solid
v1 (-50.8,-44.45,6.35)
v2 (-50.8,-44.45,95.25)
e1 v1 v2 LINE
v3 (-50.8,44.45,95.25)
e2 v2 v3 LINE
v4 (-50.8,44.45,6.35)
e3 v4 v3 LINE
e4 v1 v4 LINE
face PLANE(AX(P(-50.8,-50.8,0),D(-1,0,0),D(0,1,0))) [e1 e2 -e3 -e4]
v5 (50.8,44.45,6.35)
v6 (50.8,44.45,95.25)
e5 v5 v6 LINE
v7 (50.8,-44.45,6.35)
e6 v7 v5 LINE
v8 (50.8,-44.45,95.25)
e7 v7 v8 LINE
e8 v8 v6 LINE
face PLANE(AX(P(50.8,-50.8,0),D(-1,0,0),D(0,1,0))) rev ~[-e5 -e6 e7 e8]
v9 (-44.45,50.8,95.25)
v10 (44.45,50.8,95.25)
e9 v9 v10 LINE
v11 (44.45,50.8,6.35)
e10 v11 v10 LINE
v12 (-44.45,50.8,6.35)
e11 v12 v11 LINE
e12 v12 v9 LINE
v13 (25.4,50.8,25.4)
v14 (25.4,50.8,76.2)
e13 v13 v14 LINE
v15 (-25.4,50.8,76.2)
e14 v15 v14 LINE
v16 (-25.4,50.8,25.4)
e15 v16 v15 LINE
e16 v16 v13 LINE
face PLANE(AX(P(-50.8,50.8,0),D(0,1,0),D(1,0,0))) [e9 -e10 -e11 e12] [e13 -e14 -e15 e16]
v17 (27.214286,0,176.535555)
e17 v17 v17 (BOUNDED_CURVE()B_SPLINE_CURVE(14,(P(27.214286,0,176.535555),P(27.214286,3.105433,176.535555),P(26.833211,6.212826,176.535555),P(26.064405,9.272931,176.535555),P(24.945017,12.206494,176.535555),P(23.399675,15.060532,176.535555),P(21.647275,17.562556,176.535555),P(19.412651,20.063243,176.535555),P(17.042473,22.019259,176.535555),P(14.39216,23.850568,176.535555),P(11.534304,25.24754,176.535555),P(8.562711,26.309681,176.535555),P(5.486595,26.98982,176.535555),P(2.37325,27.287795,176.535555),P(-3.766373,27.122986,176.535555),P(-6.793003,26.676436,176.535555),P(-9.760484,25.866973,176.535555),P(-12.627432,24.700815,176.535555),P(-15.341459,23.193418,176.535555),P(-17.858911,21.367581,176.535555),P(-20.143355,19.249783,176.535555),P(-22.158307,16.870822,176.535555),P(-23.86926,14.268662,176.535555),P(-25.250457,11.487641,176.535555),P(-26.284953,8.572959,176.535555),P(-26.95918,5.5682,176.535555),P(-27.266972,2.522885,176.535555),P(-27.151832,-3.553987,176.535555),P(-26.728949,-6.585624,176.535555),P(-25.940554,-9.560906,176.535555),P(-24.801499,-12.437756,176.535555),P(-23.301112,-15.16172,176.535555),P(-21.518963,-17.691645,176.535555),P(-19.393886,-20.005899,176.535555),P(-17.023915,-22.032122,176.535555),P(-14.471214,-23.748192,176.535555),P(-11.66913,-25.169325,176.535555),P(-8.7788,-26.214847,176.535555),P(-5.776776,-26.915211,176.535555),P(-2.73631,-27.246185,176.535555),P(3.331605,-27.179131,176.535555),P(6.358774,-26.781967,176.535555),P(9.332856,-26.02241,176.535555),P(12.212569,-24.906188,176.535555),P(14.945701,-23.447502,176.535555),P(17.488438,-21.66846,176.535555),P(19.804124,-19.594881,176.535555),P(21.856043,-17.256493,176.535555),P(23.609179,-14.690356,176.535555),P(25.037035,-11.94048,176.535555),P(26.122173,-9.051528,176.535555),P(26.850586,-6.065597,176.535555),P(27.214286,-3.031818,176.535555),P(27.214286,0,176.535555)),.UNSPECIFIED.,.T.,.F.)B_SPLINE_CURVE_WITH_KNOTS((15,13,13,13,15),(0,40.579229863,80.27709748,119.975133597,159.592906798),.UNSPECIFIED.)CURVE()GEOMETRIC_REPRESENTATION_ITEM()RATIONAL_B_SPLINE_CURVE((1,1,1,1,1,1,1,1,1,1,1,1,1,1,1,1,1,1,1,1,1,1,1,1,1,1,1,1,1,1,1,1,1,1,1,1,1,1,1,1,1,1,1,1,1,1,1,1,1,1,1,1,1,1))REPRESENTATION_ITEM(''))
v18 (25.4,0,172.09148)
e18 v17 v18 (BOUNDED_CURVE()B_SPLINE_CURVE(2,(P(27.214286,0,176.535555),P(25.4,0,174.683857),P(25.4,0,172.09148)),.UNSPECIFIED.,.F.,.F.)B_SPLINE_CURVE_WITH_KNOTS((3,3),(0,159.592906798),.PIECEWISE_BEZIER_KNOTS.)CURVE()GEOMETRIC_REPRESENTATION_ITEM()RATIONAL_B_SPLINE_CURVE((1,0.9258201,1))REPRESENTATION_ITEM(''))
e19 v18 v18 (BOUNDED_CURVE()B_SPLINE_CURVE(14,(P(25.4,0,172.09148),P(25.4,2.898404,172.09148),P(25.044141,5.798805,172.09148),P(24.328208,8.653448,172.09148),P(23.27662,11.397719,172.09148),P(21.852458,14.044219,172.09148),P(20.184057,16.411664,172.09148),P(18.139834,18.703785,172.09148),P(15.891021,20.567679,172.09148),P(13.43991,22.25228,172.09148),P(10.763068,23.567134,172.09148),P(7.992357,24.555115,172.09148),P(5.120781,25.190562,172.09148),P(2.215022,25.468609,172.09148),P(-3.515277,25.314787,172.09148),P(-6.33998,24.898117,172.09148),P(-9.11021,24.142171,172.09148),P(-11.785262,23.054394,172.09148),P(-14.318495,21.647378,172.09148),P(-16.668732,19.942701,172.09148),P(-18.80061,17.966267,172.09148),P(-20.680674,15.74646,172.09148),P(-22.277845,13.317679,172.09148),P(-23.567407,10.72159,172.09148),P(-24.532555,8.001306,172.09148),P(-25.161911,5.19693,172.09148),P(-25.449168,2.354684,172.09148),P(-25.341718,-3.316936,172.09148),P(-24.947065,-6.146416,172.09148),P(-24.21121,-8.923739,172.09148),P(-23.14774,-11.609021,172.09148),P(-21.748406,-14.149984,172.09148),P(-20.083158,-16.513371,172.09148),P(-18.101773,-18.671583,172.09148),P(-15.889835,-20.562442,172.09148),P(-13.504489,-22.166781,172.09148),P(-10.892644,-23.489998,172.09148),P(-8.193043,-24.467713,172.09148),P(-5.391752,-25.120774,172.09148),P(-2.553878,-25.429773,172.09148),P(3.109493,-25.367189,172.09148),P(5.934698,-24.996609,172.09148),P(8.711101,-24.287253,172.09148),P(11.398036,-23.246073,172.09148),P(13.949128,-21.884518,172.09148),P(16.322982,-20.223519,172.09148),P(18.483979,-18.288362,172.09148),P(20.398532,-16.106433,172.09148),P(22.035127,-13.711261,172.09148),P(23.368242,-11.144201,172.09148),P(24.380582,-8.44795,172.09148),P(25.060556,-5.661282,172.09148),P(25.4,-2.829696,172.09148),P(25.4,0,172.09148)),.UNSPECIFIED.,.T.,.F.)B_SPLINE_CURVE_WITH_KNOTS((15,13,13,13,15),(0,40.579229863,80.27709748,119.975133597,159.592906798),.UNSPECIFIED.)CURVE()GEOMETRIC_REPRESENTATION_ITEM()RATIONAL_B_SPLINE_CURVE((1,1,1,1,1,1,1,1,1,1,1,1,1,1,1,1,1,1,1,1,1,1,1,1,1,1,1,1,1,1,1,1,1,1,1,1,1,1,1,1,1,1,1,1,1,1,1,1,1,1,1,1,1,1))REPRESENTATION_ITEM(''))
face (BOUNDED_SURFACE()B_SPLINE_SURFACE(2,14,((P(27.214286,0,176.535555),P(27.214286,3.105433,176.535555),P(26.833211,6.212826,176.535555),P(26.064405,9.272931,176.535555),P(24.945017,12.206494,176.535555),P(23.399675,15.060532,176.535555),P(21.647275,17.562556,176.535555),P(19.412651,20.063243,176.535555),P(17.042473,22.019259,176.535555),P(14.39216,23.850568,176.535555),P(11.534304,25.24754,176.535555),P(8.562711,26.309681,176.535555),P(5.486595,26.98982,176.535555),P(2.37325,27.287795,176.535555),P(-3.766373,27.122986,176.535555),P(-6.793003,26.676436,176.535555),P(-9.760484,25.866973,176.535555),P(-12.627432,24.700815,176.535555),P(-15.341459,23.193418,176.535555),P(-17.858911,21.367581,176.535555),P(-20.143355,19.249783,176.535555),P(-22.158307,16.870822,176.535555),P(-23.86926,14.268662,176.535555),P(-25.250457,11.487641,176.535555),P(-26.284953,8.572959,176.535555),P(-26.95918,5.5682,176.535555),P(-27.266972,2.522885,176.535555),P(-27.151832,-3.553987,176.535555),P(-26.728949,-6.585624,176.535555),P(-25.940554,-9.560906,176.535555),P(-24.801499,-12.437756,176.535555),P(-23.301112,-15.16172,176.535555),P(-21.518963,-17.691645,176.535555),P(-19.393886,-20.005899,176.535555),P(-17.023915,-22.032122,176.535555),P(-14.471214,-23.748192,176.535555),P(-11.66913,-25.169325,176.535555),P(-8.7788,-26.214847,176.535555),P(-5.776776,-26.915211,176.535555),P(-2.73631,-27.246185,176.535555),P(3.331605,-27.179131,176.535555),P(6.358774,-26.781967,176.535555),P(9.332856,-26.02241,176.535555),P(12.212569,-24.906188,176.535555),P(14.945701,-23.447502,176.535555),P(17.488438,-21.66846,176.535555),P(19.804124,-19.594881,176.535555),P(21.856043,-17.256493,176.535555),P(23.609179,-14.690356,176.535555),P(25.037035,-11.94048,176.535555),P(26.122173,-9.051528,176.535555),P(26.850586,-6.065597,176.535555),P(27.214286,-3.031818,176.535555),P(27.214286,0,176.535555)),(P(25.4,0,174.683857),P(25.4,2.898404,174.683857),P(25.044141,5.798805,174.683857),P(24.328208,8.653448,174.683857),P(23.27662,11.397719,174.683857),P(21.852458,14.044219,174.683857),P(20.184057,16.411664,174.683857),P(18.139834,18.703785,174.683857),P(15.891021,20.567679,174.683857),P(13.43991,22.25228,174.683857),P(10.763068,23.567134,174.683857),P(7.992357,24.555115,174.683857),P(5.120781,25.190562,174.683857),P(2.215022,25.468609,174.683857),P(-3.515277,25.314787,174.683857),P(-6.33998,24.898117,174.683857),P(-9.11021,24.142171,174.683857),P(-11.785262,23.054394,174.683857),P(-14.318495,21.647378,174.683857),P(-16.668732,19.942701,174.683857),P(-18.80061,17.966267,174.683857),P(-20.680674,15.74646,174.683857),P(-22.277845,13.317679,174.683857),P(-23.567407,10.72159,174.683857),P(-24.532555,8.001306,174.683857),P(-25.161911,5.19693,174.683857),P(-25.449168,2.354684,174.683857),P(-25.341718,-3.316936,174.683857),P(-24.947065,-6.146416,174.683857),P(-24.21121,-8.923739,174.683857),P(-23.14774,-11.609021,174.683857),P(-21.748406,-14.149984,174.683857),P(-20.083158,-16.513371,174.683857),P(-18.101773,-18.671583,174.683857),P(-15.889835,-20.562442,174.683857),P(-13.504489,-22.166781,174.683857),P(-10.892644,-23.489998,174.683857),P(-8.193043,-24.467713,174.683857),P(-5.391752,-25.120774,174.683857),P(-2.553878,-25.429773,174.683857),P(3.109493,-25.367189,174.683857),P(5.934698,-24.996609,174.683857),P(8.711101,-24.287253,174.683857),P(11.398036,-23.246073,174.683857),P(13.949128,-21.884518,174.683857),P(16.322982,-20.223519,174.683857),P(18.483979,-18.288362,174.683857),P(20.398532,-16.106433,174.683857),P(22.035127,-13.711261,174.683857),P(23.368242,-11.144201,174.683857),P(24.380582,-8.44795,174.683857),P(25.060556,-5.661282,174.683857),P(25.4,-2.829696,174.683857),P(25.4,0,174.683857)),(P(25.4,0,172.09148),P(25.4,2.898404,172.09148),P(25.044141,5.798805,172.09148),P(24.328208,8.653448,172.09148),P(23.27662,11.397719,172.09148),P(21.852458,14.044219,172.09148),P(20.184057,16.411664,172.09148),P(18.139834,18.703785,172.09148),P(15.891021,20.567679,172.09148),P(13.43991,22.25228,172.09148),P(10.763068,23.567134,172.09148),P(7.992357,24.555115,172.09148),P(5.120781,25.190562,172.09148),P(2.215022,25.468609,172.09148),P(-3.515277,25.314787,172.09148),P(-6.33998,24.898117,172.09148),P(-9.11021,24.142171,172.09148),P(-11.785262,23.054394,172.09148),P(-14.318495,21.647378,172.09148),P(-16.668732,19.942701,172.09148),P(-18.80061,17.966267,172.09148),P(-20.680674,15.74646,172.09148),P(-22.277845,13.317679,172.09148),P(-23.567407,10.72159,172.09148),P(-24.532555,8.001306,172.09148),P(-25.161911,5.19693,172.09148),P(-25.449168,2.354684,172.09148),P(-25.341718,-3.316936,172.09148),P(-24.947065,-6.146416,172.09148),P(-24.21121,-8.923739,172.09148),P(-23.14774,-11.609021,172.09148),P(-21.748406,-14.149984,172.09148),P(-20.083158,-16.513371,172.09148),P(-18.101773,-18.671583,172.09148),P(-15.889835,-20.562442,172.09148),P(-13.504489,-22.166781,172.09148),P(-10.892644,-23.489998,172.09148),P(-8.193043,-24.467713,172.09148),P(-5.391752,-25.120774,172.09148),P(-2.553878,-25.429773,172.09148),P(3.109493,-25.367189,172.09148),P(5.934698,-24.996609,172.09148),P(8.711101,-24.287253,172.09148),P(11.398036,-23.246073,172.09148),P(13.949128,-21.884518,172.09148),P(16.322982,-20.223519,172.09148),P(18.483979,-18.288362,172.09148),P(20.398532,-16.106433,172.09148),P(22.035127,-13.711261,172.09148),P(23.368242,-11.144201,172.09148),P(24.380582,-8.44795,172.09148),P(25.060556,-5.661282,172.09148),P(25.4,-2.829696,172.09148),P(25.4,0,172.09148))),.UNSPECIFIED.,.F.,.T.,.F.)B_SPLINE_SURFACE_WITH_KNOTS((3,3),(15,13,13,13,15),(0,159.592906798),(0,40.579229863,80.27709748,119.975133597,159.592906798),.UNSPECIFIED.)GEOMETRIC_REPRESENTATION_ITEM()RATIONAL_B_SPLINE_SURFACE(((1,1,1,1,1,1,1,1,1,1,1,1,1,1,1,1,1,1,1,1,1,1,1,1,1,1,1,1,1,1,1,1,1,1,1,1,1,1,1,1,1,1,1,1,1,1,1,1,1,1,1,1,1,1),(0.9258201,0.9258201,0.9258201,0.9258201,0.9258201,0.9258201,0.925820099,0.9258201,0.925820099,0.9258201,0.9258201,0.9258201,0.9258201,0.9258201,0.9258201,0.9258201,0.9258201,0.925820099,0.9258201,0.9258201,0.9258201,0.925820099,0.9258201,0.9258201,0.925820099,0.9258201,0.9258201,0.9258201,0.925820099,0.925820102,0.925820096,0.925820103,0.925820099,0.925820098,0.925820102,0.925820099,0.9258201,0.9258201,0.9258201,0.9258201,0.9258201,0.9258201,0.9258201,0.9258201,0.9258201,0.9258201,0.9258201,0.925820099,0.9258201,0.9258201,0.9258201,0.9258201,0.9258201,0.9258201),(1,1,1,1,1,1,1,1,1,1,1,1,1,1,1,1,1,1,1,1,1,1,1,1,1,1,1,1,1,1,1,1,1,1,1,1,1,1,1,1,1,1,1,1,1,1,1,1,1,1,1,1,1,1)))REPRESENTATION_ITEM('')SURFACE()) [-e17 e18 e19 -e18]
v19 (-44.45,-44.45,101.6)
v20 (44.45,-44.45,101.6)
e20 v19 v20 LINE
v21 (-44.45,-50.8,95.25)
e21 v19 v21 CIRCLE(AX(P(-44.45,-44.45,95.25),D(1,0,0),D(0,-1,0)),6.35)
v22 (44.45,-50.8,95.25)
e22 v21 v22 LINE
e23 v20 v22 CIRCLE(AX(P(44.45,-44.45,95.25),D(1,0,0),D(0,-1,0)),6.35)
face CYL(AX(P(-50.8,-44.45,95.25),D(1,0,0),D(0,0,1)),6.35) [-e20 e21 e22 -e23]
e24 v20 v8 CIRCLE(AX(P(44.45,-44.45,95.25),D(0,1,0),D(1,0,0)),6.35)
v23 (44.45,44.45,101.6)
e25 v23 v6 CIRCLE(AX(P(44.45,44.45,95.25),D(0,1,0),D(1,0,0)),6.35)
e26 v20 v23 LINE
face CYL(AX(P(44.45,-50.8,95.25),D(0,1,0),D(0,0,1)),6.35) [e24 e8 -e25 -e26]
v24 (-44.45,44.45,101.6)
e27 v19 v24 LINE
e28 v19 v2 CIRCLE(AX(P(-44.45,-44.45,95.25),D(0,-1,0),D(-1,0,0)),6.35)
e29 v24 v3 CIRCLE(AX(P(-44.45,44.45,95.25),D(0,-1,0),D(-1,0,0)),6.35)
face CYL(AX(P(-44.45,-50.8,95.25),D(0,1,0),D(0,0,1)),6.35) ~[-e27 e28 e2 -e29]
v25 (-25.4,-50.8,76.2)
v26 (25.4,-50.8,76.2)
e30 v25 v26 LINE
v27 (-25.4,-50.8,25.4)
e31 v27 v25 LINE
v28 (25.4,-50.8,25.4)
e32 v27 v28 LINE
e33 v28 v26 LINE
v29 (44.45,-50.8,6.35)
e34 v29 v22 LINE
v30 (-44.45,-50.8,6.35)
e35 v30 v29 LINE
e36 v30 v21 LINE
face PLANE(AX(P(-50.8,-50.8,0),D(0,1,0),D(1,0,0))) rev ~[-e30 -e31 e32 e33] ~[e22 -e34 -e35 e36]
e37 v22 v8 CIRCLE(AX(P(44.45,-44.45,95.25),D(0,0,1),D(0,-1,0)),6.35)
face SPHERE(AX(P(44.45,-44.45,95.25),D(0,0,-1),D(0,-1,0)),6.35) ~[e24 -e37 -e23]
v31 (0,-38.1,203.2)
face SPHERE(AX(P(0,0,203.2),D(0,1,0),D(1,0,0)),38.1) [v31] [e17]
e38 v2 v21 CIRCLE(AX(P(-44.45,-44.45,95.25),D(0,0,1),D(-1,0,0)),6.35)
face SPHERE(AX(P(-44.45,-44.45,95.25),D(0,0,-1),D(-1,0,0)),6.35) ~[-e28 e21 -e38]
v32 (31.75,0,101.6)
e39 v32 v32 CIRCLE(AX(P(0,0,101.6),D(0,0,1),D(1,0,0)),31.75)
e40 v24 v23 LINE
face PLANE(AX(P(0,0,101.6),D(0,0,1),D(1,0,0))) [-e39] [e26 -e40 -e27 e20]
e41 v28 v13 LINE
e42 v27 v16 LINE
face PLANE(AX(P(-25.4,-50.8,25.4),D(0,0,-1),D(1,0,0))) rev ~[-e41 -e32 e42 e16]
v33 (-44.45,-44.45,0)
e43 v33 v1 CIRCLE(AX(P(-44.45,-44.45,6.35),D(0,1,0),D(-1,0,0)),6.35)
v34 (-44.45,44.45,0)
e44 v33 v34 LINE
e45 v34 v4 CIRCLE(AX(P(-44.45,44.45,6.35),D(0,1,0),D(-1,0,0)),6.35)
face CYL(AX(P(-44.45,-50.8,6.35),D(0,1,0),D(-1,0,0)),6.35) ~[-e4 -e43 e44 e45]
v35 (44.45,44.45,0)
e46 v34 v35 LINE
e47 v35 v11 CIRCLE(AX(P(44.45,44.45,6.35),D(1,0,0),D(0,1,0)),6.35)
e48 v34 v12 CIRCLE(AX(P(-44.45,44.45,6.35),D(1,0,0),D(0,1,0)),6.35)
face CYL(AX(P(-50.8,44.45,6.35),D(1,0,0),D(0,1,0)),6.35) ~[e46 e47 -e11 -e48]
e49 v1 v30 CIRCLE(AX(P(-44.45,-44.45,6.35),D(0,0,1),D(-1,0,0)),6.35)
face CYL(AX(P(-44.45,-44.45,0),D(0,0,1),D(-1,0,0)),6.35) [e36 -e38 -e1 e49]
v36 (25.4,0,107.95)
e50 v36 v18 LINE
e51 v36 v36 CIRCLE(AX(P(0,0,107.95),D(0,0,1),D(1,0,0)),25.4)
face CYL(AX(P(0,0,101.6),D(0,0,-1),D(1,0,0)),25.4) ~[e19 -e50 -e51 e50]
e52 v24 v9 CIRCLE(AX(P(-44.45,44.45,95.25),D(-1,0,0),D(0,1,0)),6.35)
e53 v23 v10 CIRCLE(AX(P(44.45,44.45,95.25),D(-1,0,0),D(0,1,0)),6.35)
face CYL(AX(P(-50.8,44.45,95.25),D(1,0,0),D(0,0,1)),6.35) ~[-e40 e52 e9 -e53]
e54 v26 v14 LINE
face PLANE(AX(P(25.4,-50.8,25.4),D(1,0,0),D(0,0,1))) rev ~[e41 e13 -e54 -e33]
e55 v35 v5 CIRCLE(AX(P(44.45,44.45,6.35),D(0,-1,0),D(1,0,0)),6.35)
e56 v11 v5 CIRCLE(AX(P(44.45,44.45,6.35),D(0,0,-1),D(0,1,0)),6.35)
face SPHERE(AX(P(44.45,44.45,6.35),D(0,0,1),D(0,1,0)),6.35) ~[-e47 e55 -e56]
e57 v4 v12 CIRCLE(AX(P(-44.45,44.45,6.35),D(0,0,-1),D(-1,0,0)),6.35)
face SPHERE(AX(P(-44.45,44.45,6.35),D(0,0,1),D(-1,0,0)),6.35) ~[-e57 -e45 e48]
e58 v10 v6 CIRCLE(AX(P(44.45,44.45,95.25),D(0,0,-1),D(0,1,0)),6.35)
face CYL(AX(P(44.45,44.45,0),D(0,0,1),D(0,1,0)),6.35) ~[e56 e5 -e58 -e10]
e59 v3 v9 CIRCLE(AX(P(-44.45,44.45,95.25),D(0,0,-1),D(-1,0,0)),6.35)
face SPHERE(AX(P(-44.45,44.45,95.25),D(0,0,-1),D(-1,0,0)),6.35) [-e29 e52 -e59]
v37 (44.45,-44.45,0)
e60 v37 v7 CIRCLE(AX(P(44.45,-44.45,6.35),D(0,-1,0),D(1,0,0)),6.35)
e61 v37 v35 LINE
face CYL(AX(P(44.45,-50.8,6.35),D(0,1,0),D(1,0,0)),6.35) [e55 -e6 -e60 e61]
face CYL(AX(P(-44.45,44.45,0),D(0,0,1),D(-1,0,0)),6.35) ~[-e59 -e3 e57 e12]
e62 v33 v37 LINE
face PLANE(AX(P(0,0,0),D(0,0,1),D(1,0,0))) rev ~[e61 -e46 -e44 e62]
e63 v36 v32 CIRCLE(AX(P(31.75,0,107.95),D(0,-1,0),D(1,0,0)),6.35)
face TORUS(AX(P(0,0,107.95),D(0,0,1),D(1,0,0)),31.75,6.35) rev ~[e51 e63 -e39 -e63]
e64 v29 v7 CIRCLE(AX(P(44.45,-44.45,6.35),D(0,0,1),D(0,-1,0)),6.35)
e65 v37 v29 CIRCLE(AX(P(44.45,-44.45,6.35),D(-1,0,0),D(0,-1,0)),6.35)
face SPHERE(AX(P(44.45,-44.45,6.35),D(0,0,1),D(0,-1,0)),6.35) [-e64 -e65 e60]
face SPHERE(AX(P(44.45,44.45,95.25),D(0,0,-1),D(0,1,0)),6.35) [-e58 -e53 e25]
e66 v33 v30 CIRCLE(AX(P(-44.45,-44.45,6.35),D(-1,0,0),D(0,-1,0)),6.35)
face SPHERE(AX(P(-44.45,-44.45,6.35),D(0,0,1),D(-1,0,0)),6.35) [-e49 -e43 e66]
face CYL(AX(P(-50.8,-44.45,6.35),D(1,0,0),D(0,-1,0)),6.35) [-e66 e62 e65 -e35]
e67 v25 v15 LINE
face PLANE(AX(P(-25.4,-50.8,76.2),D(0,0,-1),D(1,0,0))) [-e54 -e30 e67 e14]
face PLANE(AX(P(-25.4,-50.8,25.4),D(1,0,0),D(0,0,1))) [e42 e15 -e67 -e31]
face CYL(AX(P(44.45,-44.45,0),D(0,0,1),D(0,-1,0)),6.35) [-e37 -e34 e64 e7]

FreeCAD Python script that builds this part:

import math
import FreeCAD as App
import Part
import Sketcher

V = App.Vector
Q = App.Units.Quantity


def edges_at(feature, points):
    """Names of the edges that pass closest to the given points."""
    edges = feature.Shape.Edges
    near = lambda p: min(range(len(edges)), key=lambda i: edges[i].distToShape(Part.Vertex(*p))[0])
    return sorted({f"Edge{near(p) + 1}" for p in points})


def add_polygon(sketch, points):
    """Adds a closed chain of lines whose ends are joined by coincident constraints."""
    first, n = sketch.GeometryCount, len(points)
    for a, b in zip(points, points[1:] + points[:1]):
        sketch.addGeometry(Part.LineSegment(App.Vector(*a, 0), App.Vector(*b, 0)), False)
    for i in range(n):
        sketch.addConstraint(Sketcher.Constraint("Coincident", first + i, 2, first + (i + 1) % n, 1))

doc = App.newDocument("Part")
body = doc.addObject("PartDesign::Body", "Body")

sketch1 = body.newObject("Sketcher::SketchObject", "Sketch")
sketch1.AttachmentSupport = (doc.getObject("XY_Plane"), [""])
sketch1.MapMode = "FlatFace"
add_polygon(sketch1, [(-51, 51), (-51, -51), (51, -51), (51, 51)])
sketch1.addConstraint([
    Sketcher.Constraint("Vertical", 0),
    Sketcher.Constraint("Horizontal", 1),
    Sketcher.Constraint("Vertical", 2),
    Sketcher.Constraint("Horizontal", 3),
    Sketcher.Constraint("Symmetric", 0, 2, 2, 2, -1, 1),
    Sketcher.Constraint("Equal", 3, 0),
    Sketcher.Constraint("DistanceX", 1, 1, 1, 2, Q("4 in")),
])
pad1 = body.newObject("PartDesign::Pad", "Pad")
pad1.Profile = sketch1
pad1.Length = Q("4 in")

sketch2 = body.newObject("Sketcher::SketchObject", "Sketch001")
sketch2.AttachmentSupport = (doc.getObject("XY_Plane"), [""])
sketch2.MapMode = "FlatFace"
sketch2.AttachmentOffset = App.Placement(V(0, 0, 4 * 25.4), App.Rotation())
sketch2.addGeometry(Part.Circle(V(0, 0, 0), V(0, 0, 1), 25), False)
sketch2.addConstraint([
    Sketcher.Constraint("Coincident", 0, 3, -1, 1),
    Sketcher.Constraint("Diameter", 0, Q("2 in")),
])
pad2 = body.newObject("PartDesign::Pad", "Pad001")
pad2.Profile = sketch2
pad2.Length = Q("4 in")

sketch3 = body.newObject("Sketcher::SketchObject", "Sketch002")
sketch3.AttachmentSupport = (doc.getObject("XY_Plane"), [""])
sketch3.MapMode = "FlatFace"
sketch3.AttachmentOffset = App.Placement(V(0, 0, 8 * 25.4), App.Rotation())
sketch3.addGeometry([
    Part.ArcOfCircle(Part.Circle(V(0, 0, 0), V(0, 0, 1), 38), math.radians(-90), math.radians(90)),
    Part.LineSegment(V(0, 38, 0), V(0, -38, 0)),
], False)
sketch3.addConstraint([
    Sketcher.Constraint("Coincident", 0, 1, 1, 2),
    Sketcher.Constraint("Coincident", 1, 1, 0, 2),
    Sketcher.Constraint("Vertical", 1),
    Sketcher.Constraint("Coincident", 0, 3, -1, 1),
    Sketcher.Constraint("PointOnObject", 0, 1, -2),
    Sketcher.Constraint("Radius", 0, Q("1.5 in")),
])
revolution = body.newObject("PartDesign::Revolution", "Revolution")
revolution.Profile = sketch3
revolution.ReferenceAxis = (sketch3, ["V_Axis"])
revolution.Angle = 360

sketch4 = body.newObject("Sketcher::SketchObject", "Sketch003")
sketch4.AttachmentSupport = (doc.getObject("XZ_Plane"), [""])
sketch4.MapMode = "FlatFace"
sketch4.AttachmentOffset = App.Placement(V(0, 0, 2 * 25.4), App.Rotation())
add_polygon(sketch4, [(-25, 76), (-25, 25), (25, 25), (25, 76)])
sketch4.addConstraint([
    Sketcher.Constraint("Vertical", 0),
    Sketcher.Constraint("Horizontal", 1),
    Sketcher.Constraint("Vertical", 2),
    Sketcher.Constraint("Horizontal", 3),
    Sketcher.Constraint("Equal", 3, 0),
    Sketcher.Constraint("DistanceX", 1, 1, 1, 2, Q("2 in")),
    Sketcher.Constraint("DistanceX", 0, 2, -1, 1, Q("1 in")),
    Sketcher.Constraint("DistanceY", -1, 1, 0, 2, Q("1 in")),
])
pocket1 = body.newObject("PartDesign::Pocket", "Pocket")
pocket1.Profile = sketch4
pocket1.Length = Q("4 in")
doc.recompute()

fillet = body.newObject("PartDesign::Fillet", "Fillet")
fillet.Base = (pocket1, edges_at(pocket1, [
    (50.8, 50.8, 50.8),
    (-50.8, 50.8, 50.8),
    (50.8, -50.8, 50.8),
    (-50.8, -50.8, 50.8),
    (-50.8, 0, 0),
    (-50.8, 0, 101.6),
    (0, 50.8, 0),
    (0, 50.8, 101.6),
    (0, -50.8, 101.6),
    (0, -50.8, 0),
    (50.8, 0, 101.6),
    (50.8, 0, 0),
    (-25.4, 0, 101.6),
    (-25.4, 0, 174.802),
]))
fillet.Radius = Q("0.25 in")

doc.recompute()
